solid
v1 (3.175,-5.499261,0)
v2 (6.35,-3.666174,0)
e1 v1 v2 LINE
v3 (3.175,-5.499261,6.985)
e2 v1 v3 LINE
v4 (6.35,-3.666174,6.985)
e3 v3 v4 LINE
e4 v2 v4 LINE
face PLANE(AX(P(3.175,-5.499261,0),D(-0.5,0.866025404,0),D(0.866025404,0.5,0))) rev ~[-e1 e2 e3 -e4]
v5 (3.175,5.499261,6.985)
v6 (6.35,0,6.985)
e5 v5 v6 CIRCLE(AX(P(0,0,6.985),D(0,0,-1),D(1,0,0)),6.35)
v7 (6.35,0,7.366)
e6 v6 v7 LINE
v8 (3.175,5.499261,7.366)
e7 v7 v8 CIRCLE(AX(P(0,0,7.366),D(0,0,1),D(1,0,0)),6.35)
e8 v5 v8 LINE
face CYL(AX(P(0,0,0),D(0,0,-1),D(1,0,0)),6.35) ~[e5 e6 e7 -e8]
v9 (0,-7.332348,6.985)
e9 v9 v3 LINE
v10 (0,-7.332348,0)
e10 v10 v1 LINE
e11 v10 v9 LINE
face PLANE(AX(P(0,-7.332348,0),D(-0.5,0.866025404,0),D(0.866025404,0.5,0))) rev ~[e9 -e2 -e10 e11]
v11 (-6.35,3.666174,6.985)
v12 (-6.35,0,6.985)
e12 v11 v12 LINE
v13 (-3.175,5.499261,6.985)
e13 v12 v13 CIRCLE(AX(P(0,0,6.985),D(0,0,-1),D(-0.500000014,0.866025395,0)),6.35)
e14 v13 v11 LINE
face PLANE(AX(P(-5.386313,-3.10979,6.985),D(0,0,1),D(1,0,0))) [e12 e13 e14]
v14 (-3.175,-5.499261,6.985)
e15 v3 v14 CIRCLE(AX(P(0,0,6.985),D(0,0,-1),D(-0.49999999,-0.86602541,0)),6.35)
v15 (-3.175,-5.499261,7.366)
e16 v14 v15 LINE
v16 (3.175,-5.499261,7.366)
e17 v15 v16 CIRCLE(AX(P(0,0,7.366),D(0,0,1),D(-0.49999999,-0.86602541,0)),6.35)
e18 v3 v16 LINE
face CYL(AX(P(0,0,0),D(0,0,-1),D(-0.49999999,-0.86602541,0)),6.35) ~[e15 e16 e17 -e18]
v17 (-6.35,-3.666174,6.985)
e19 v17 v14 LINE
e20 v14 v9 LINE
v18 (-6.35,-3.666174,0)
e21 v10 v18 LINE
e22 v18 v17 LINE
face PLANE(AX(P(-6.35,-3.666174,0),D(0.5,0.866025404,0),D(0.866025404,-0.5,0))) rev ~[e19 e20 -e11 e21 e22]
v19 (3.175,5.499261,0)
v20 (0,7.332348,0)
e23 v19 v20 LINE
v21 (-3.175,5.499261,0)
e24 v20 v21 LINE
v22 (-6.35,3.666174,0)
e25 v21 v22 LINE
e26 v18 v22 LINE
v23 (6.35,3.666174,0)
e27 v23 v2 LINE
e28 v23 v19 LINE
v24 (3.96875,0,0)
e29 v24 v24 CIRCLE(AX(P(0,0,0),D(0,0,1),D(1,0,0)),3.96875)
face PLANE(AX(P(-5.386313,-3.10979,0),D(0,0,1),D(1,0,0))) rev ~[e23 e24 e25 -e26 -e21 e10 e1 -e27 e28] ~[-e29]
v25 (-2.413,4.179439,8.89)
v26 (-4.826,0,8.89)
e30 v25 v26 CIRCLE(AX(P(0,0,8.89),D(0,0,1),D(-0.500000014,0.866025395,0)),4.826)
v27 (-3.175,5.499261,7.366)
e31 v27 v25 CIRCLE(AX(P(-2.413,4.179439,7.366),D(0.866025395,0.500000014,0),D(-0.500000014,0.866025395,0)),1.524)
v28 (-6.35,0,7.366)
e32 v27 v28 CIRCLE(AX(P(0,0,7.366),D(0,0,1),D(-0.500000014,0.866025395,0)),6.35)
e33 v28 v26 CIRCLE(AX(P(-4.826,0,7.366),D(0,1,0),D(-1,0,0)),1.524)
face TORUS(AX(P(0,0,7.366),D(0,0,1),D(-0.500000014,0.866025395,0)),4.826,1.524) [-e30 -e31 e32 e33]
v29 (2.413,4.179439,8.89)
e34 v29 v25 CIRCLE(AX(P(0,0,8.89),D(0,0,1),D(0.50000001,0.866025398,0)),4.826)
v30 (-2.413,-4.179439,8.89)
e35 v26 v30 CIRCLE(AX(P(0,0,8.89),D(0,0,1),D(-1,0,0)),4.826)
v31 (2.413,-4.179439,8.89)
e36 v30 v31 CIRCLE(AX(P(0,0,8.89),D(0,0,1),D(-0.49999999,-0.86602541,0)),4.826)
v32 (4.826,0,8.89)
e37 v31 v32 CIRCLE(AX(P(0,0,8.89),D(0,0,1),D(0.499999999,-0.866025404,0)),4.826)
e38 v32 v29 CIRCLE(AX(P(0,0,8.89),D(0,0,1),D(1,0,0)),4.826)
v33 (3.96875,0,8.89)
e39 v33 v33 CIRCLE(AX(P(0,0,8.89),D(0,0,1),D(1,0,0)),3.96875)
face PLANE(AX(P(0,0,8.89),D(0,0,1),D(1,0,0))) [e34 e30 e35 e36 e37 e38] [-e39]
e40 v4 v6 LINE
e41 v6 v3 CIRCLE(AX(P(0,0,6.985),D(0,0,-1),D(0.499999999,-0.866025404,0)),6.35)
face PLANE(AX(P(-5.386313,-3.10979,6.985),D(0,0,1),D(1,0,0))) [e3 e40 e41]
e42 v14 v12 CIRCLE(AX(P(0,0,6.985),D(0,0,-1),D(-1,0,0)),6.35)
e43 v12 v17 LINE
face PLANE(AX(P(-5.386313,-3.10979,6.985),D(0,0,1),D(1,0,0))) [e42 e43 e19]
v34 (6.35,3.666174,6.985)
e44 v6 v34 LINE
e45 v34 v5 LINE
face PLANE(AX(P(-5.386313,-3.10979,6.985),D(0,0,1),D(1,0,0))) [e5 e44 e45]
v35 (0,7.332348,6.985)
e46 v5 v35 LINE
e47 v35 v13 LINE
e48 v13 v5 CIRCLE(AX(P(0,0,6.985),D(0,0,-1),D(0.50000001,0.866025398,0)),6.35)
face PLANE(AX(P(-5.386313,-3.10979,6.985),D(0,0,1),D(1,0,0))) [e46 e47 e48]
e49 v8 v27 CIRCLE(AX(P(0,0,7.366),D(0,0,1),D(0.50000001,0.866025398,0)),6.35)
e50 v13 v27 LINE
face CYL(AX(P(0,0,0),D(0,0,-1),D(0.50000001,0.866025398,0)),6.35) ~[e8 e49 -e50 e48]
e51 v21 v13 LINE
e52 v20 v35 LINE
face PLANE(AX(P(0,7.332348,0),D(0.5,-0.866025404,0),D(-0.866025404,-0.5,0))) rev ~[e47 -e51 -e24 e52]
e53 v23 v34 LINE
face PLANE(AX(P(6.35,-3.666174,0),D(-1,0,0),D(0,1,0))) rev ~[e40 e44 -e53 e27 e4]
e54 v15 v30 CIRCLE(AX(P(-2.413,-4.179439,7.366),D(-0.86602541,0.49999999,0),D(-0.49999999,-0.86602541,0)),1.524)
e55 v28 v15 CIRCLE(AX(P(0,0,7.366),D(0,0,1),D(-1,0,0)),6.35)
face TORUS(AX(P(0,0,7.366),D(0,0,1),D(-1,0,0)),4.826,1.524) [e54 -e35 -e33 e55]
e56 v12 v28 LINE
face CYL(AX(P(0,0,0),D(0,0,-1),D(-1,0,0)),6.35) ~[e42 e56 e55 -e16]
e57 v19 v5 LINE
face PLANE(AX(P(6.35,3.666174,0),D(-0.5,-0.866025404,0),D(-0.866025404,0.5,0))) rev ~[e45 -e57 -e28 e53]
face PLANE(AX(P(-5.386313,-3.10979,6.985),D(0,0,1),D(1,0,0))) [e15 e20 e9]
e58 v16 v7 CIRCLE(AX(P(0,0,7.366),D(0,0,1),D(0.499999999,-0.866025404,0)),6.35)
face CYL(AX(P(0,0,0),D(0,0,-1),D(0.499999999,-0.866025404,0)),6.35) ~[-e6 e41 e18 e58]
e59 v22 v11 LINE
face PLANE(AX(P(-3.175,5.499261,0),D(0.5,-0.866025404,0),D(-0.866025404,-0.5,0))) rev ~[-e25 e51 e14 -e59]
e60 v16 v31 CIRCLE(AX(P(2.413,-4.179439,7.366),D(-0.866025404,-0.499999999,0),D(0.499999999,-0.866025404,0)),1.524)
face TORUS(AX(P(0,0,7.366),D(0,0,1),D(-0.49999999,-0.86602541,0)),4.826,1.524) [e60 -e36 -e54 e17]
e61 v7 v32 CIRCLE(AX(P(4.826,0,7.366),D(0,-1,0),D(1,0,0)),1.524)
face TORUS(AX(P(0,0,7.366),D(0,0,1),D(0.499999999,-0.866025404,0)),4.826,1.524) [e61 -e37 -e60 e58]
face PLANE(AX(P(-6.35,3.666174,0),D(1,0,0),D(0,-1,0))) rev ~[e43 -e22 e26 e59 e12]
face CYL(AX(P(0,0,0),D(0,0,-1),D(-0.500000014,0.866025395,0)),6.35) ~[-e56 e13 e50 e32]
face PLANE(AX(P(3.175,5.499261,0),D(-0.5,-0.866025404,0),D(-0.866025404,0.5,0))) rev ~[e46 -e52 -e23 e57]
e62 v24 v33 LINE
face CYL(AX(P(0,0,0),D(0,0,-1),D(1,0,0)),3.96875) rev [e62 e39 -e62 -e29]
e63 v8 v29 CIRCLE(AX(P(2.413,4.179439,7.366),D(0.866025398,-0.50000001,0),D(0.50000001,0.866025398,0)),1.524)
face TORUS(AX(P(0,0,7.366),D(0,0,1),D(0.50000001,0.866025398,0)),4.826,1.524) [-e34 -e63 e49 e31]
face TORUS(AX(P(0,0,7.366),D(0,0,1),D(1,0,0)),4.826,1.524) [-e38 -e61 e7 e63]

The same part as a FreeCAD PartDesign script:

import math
import FreeCAD as App
import Part
import Sketcher

V = App.Vector
Q = App.Units.Quantity


def edges_at(feature, points):
    """Names of the edges that pass closest to the given points."""
    edges = feature.Shape.Edges
    near = lambda p: min(range(len(edges)), key=lambda i: edges[i].distToShape(Part.Vertex(*p))[0])
    return sorted({f"Edge{near(p) + 1}" for p in points})

doc = App.newDocument("Part")
body = doc.addObject("PartDesign::Body", "Body")

sketch1 = body.newObject("Sketcher::SketchObject", "Sketch")
sketch1.AttachmentSupport = (doc.getObject("XY_Plane"), [""])
sketch1.MapMode = "FlatFace"
sketch1.addGeometry(Part.LineSegment(V(-6.3, -3.7, 0), V(0, -7.3, 0)), False)
sketch1.addGeometry(Part.LineSegment(V(0, -7.3, 0), V(3.2, -5.5, 0)), False)
sketch1.addGeometry(Part.LineSegment(V(3.2, -5.5, 0), V(6.3, -3.7, 0)), False)
sketch1.addGeometry(Part.LineSegment(V(6.3, -3.7, 0), V(6.3, 3.7, 0)), False)
sketch1.addGeometry(Part.LineSegment(V(6.3, 3.7, 0), V(3.2, 5.5, 0)), False)
sketch1.addGeometry(Part.LineSegment(V(3.2, 5.5, 0), V(0, 7.3, 0)), False)
sketch1.addGeometry(Part.LineSegment(V(0, 7.3, 0), V(-3.2, 5.5, 0)), False)
sketch1.addGeometry(Part.LineSegment(V(-3.2, 5.5, 0), V(-6.3, 3.7, 0)), False)
sketch1.addGeometry(Part.LineSegment(V(-6.3, 3.7, 0), V(-6.3, -3.7, 0)), False)
sketch1.addGeometry(Part.Circle(V(0, 0, 0), V(0, 0, 1), 4), False)
sketch1.addConstraint(Sketcher.Constraint("Coincident", 0, 2, 1, 1))
sketch1.addConstraint(Sketcher.Constraint("Coincident", 1, 2, 2, 1))
sketch1.addConstraint(Sketcher.Constraint("Coincident", 2, 2, 3, 1))
sketch1.addConstraint(Sketcher.Constraint("Coincident", 3, 2, 4, 1))
sketch1.addConstraint(Sketcher.Constraint("Coincident", 4, 2, 5, 1))
sketch1.addConstraint(Sketcher.Constraint("Coincident", 5, 2, 6, 1))
sketch1.addConstraint(Sketcher.Constraint("Coincident", 6, 2, 7, 1))
sketch1.addConstraint(Sketcher.Constraint("Coincident", 7, 2, 8, 1))
sketch1.addConstraint(Sketcher.Constraint("Coincident", 8, 2, 0, 1))
sketch1.addConstraint(Sketcher.Constraint("Vertical", 3))
sketch1.addConstraint(Sketcher.Constraint("Vertical", 8))
sketch1.addConstraint(Sketcher.Constraint("Coincident", 9, 3, -1, 1))
sketch1.addConstraint(Sketcher.Constraint("Symmetric", 0, 2, 5, 2, -1, 1))
sketch1.addConstraint(Sketcher.Constraint("Symmetric", 1, 2, 6, 2, -1, 1))
sketch1.addConstraint(Sketcher.Constraint("Symmetric", 2, 2, 7, 2, -1, 1))
sketch1.addConstraint(Sketcher.Constraint("Symmetric", 4, 2, 6, 2, -2))
sketch1.addConstraint(Sketcher.Constraint("PointOnObject", 0, 2, -2))
sketch1.addConstraint(Sketcher.Constraint("Parallel", 1, 2))
sketch1.addConstraint(Sketcher.Constraint("Parallel", 0, 4))
sketch1.addConstraint(Sketcher.Constraint("Parallel", 4, 5))
sketch1.addConstraint(Sketcher.Constraint("Equal", 1, 2))
sketch1.addConstraint(Sketcher.Constraint("Diameter", 9, Q("0.3125 in")))
sketch1.addConstraint(Sketcher.Constraint("Angle", 0, Q("-30 deg")))
sketch1.addConstraint(Sketcher.Constraint("DistanceX", -1, 1, 2, 2, Q("0.25 in")))
sketch1.addConstraint(Sketcher.Constraint("DistanceY", 3, 1, 3, 2, 7.332348))
pad1 = body.newObject("PartDesign::Pad", "Pad")
pad1.Profile = sketch1
pad1.Length = Q("0.275 in")

sketch2 = body.newObject("Sketcher::SketchObject", "Sketch001")
sketch2.AttachmentSupport = (doc.getObject("XY_Plane"), [""])
sketch2.MapMode = "FlatFace"
sketch2.addGeometry(Part.ArcOfCircle(Part.Circle(V(0, 0, 0), V(0, 0, 1), 6.3), math.radians(-60), math.radians(0)), False)
sketch2.addGeometry(Part.ArcOfCircle(Part.Circle(V(0, 0, 0), V(0, 0, 1), 6.3), math.radians(0), math.radians(60)), False)
sketch2.addGeometry(Part.ArcOfCircle(Part.Circle(V(0, 0, 0), V(0, 0, 1), 6.3), math.radians(60), math.radians(120)), False)
sketch2.addGeometry(Part.ArcOfCircle(Part.Circle(V(0, 0, 0), V(0, 0, 1), 6.3), math.radians(120), math.radians(180)), False)
sketch2.addGeometry(Part.ArcOfCircle(Part.Circle(V(0, 0, 0), V(0, 0, 1), 6.3), math.radians(180), math.radians(240)), False)
sketch2.addGeometry(Part.ArcOfCircle(Part.Circle(V(0, 0, 0), V(0, 0, 1), 6.3), math.radians(-120), math.radians(-60)), False)
sketch2.addGeometry(Part.Circle(V(0, 0, 0), V(0, 0, 1), 4), False)
sketch2.addConstraint(Sketcher.Constraint("Tangent", 0, 2, 1, 1))
sketch2.addConstraint(Sketcher.Constraint("Tangent", 1, 2, 2, 1))
sketch2.addConstraint(Sketcher.Constraint("Tangent", 2, 2, 3, 1))
sketch2.addConstraint(Sketcher.Constraint("Tangent", 3, 2, 4, 1))
sketch2.addConstraint(Sketcher.Constraint("Tangent", 4, 2, 5, 1))
sketch2.addConstraint(Sketcher.Constraint("Tangent", 5, 2, 0, 1))
sketch2.addConstraint(Sketcher.Constraint("Coincident", 0, 3, -1, 1))
sketch2.addConstraint(Sketcher.Constraint("Coincident", 2, 3, -1, 1))
sketch2.addConstraint(Sketcher.Constraint("Coincident", 6, 3, -1, 1))
sketch2.addConstraint(Sketcher.Constraint("Equal", 2, 3))
sketch2.addConstraint(Sketcher.Constraint("PointOnObject", 0, 2, -1))
sketch2.addConstraint(Sketcher.Constraint("PointOnObject", 3, 2, -1))
sketch2.addConstraint(Sketcher.Constraint("Horizontal", 1, 2, 2, 2))
sketch2.addConstraint(Sketcher.Constraint("Horizontal", 4, 2, 5, 2))
sketch2.addConstraint(Sketcher.Constraint("Vertical", 2, 2, 4, 2))
sketch2.addConstraint(Sketcher.Constraint("Radius", 0, Q("0.25 in")))
sketch2.addConstraint(Sketcher.Constraint("Diameter", 6, Q("0.3125 in")))
sketch2.addConstraint(Sketcher.Constraint("DistanceX", 4, 2, 5, 2, Q("0.25 in")))
pad2 = body.newObject("PartDesign::Pad", "Pad001")
pad2.Profile = sketch2
pad2.Length = Q("0.35 in")
doc.recompute()

fillet = body.newObject("PartDesign::Fillet", "Fillet")
fillet.Base = (pad2, edges_at(pad2, [(5.499, -3.175, 8.89)]))
fillet.Radius = Q("0.06 in")

doc.recompute()
